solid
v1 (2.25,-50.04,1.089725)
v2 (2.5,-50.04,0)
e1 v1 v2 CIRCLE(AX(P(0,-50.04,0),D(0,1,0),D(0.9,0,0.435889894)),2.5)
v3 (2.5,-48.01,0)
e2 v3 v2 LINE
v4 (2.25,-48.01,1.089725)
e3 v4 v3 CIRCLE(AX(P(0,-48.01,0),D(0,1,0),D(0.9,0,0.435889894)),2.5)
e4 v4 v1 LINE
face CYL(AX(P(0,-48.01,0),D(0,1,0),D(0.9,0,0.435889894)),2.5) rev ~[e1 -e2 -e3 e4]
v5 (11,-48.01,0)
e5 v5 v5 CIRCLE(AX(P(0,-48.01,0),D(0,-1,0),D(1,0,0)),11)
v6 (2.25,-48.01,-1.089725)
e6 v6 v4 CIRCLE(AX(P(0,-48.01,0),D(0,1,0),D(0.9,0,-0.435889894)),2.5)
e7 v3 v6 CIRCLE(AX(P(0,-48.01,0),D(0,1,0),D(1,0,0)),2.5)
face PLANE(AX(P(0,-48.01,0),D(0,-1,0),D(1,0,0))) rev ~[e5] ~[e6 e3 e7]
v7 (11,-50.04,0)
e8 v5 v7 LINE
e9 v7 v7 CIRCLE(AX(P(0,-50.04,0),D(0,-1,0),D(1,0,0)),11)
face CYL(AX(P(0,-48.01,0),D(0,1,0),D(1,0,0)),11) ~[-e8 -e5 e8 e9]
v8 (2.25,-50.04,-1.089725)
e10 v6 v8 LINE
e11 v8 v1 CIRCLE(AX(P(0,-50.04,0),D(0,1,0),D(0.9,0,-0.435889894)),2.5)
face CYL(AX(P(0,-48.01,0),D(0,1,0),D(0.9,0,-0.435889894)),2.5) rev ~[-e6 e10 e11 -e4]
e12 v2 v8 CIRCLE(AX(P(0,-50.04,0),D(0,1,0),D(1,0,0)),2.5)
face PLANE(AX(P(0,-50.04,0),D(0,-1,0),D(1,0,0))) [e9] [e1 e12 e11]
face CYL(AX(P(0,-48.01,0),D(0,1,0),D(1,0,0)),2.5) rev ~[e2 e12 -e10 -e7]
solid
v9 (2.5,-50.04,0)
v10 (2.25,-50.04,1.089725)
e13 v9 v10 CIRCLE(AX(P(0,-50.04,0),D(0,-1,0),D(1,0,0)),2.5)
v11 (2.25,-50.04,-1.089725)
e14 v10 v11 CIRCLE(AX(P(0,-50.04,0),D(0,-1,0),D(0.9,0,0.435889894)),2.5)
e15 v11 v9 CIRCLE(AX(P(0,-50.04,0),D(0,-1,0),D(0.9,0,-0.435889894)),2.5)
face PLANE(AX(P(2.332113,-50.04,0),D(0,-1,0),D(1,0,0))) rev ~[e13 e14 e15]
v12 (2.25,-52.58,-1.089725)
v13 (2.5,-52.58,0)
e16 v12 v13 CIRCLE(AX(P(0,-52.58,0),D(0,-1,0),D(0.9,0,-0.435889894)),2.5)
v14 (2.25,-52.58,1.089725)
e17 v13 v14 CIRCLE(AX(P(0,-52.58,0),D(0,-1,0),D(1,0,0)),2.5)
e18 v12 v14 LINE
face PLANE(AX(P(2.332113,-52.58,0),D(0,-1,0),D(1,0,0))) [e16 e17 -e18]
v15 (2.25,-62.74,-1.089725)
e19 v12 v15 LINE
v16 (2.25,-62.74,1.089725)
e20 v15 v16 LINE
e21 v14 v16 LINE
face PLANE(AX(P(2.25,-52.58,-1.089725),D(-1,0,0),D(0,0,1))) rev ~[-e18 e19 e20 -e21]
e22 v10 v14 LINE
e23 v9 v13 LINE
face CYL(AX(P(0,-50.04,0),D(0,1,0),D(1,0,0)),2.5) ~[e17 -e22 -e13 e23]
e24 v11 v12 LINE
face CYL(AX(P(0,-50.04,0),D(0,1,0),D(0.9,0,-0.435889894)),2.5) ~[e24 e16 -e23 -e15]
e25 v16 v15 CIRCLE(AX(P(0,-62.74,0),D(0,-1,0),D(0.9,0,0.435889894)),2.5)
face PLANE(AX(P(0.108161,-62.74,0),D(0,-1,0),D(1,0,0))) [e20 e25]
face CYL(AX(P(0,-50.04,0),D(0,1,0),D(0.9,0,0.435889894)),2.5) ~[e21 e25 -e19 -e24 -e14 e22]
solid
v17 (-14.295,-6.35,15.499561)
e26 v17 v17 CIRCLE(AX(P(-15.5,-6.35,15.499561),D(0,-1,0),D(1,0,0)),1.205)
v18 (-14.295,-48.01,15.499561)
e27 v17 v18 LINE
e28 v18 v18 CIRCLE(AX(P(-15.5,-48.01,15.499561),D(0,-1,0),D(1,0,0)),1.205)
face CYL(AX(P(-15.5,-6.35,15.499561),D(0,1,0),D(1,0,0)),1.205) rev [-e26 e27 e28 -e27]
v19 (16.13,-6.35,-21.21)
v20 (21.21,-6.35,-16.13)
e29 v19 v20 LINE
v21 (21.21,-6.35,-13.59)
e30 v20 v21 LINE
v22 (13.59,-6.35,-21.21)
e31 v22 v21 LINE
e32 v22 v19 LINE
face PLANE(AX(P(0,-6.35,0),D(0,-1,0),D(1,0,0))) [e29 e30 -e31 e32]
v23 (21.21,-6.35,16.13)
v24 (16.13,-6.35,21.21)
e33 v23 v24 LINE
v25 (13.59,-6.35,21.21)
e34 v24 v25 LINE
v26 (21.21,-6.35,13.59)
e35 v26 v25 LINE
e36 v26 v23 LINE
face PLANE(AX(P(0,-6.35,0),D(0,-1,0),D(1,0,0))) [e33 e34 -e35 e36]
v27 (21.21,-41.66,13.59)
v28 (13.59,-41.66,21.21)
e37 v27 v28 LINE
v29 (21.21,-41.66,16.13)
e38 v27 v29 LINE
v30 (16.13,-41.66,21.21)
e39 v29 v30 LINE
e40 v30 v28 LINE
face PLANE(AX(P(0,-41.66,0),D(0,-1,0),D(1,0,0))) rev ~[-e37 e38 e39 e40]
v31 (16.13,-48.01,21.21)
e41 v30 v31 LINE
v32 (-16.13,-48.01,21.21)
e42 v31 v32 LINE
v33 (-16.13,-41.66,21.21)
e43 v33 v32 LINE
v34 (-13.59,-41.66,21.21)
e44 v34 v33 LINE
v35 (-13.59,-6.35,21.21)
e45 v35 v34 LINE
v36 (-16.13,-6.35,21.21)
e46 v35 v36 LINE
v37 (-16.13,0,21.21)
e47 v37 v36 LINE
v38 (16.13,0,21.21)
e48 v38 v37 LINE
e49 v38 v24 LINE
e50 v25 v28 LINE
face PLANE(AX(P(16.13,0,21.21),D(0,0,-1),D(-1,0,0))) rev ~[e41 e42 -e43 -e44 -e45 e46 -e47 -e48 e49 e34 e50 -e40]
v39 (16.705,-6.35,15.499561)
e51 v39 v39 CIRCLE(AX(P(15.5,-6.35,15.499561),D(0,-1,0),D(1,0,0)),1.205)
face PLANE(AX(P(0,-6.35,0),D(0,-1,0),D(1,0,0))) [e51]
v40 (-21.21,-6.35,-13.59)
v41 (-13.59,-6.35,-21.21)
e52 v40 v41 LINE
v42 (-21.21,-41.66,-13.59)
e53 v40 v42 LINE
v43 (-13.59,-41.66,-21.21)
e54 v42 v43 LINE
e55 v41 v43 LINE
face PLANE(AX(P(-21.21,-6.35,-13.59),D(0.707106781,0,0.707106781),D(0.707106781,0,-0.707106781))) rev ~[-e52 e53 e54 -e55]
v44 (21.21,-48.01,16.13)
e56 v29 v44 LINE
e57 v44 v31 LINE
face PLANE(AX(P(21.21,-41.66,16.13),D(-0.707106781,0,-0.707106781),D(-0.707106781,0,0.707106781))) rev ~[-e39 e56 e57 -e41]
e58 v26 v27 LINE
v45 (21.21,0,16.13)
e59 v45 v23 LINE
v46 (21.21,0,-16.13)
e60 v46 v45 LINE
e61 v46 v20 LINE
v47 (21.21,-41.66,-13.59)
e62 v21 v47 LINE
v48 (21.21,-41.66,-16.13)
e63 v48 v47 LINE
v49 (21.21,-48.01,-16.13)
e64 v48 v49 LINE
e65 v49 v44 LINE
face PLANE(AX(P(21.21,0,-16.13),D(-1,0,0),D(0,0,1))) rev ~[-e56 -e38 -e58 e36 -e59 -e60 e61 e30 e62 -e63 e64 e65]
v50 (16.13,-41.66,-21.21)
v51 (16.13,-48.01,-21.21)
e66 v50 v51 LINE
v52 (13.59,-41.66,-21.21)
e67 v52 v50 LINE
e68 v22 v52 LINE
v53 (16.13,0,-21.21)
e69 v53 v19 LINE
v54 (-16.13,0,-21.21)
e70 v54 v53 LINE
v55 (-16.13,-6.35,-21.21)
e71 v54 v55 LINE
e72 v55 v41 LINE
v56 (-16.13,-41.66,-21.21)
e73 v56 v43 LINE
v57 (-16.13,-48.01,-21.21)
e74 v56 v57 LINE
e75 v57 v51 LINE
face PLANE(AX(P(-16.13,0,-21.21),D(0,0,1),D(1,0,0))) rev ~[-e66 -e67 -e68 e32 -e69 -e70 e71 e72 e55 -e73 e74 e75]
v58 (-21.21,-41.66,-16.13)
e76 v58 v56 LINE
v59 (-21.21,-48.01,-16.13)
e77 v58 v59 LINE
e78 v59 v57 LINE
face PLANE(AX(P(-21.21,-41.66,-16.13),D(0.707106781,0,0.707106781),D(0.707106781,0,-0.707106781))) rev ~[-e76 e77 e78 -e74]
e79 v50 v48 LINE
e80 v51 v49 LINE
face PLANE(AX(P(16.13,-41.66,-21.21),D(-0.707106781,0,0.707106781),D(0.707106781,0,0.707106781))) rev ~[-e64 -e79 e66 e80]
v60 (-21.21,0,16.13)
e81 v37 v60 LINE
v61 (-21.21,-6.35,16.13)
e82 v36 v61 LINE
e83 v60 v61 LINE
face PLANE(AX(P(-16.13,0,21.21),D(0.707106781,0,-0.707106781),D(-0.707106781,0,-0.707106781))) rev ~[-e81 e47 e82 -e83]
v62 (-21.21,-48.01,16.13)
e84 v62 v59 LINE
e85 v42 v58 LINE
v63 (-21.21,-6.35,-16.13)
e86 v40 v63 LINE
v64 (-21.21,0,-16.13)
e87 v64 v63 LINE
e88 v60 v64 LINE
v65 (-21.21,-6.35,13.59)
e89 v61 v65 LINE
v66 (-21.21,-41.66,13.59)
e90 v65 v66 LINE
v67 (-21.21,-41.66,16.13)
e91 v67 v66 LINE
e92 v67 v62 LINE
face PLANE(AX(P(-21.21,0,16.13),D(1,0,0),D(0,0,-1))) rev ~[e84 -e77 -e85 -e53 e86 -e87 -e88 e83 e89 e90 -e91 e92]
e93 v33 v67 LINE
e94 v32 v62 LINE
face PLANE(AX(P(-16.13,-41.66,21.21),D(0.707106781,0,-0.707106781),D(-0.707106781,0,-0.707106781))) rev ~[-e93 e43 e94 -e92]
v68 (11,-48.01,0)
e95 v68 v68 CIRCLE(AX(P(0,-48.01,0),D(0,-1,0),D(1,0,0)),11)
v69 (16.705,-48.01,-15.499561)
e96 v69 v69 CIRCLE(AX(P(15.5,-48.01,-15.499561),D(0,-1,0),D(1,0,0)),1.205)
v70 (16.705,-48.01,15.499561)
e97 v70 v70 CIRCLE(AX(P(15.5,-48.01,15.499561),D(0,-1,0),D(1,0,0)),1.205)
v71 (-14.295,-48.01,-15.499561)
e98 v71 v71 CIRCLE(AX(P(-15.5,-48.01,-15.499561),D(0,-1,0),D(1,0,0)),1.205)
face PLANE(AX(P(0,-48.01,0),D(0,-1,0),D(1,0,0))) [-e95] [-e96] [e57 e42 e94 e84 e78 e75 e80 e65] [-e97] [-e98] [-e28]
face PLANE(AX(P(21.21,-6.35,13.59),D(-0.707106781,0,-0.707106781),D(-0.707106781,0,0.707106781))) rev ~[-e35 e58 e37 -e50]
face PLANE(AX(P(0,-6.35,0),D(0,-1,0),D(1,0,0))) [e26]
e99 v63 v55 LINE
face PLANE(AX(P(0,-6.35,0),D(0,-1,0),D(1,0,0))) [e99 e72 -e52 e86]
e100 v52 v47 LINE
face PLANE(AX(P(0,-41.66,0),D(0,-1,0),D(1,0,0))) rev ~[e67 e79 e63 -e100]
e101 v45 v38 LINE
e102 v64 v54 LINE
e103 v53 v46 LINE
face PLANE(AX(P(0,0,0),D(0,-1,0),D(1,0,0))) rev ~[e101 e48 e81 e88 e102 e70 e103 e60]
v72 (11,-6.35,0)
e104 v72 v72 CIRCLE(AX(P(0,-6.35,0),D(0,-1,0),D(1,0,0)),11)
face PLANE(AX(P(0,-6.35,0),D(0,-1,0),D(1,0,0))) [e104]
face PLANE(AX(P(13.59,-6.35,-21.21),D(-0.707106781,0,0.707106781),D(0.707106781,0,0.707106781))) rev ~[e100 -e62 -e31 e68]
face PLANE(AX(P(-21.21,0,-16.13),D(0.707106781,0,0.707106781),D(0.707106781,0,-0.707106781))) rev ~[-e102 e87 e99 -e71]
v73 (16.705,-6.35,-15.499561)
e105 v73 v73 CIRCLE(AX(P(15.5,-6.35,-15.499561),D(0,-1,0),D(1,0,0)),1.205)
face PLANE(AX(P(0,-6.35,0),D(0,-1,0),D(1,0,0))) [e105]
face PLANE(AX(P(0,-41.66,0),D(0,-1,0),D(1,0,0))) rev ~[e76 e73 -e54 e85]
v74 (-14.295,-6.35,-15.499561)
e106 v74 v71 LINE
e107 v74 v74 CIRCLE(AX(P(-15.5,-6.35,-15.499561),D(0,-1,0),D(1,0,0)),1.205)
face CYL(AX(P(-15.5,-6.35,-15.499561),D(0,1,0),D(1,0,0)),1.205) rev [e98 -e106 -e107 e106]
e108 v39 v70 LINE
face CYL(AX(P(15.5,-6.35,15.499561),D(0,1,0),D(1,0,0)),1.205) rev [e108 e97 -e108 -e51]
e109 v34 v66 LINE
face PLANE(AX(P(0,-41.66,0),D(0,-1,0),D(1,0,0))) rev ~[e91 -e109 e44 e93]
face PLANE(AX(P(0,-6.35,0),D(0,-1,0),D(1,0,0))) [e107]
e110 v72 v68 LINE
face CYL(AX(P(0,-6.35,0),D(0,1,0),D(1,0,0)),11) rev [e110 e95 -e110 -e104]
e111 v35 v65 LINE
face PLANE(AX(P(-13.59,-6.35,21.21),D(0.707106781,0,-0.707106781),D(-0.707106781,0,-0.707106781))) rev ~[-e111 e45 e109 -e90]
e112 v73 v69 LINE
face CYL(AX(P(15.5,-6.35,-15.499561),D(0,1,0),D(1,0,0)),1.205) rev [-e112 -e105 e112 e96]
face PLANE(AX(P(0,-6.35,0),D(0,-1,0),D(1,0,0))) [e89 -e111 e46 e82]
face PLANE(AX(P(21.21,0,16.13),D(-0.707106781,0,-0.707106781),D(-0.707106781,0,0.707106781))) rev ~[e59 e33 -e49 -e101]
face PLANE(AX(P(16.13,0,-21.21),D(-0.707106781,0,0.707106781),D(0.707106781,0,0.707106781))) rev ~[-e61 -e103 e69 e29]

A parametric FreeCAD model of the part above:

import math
import FreeCAD as App
import Part
import Sketcher
Q = App.Units.Quantity

doc = App.newDocument("Part")
body = doc.addObject("PartDesign::Body", "Body")

sketch1 = body.newObject("Sketcher::SketchObject", "Sketch")
sketch1.AttachmentSupport = (doc.getObject("XZ_Plane"), [""])
sketch1.MapMode = "FlatFace"
sketch1.AttachmentOffset = App.Placement(App.Vector(0, 0, 52.58), App.Rotation())
sketch1.addGeometry([
    Part.LineSegment(App.Vector(2.25, -1.089725, 0), App.Vector(2.25, 1.089725, 0)),
    Part.ArcOfCircle(Part.Circle(App.Vector(0, 0, 0), App.Vector(0, 0, 1), 2.5), math.radians(25.841933), math.radians(334.158067)),
], False)
sketch1.addConstraint([
    Sketcher.Constraint("Coincident", 0, 1, 1, 2),
    Sketcher.Constraint("Coincident", 1, 1, 0, 2),
    Sketcher.Constraint("Vertical", 0),
    Sketcher.Constraint("Coincident", 1, 3, -1, 1),
    Sketcher.Constraint("Radius", 1, 2.5),
    Sketcher.Constraint("DistanceY", 0, 1, 0, 2, 2.179449),
])
pad1 = body.newObject("PartDesign::Pad", "Pad")
pad1.Profile = sketch1
pad1.Length = Q("0.4 in")

sketch2 = body.newObject("Sketcher::SketchObject", "Sketch001")
sketch2.AttachmentSupport = (doc.getObject("XZ_Plane"), [""])
sketch2.MapMode = "FlatFace"
sketch2.AttachmentOffset = App.Placement(App.Vector(0, 0, 50.04), App.Rotation())
sketch2.addGeometry([
    Part.ArcOfCircle(Part.Circle(App.Vector(0, 0, 0), App.Vector(0, 0, 1), 2.5), math.radians(-25.841933), math.radians(0)),
    Part.ArcOfCircle(Part.Circle(App.Vector(0, 0, 0), App.Vector(0, 0, 1), 2.5), math.radians(0), math.radians(25.841933)),
    Part.ArcOfCircle(Part.Circle(App.Vector(0, 0, 0), App.Vector(0, 0, 1), 2.5), math.radians(25.841933), math.radians(334.158067)),
], False)
sketch2.addConstraint([
    Sketcher.Constraint("Tangent", 0, 2, 1, 1),
    Sketcher.Constraint("Tangent", 1, 2, 2, 1),
    Sketcher.Constraint("Tangent", 2, 2, 0, 1),
    Sketcher.Constraint("Coincident", 0, 3, -1, 1),
    Sketcher.Constraint("PointOnObject", 0, 2, -1),
    Sketcher.Constraint("Vertical", 1, 2, 2, 2),
    Sketcher.Constraint("Radius", 0, 2.5),
    Sketcher.Constraint("DistanceX", -1, 1, 1, 2, 2.25),
])
pad2 = body.newObject("PartDesign::Pad", "Pad001")
pad2.Profile = sketch2
pad2.Length = Q("0.1 in")
body2 = doc.addObject("PartDesign::Body", "Body001")

sketch3 = body2.newObject("Sketcher::SketchObject", "Sketch002")
sketch3.AttachmentSupport = (doc.getObject("XZ_Plane001"), [""])
sketch3.MapMode = "FlatFace"
sketch3.AttachmentOffset = App.Placement(App.Vector(0, 0, 48.01), App.Rotation())
sketch3.addGeometry([
    Part.Circle(App.Vector(0, 0, 0), App.Vector(0, 0, 1), 11),
    Part.ArcOfCircle(Part.Circle(App.Vector(0, 0, 0), App.Vector(0, 0, 1), 2.5), math.radians(25.841933), math.radians(334.158067)),
    Part.ArcOfCircle(Part.Circle(App.Vector(0, 0, 0), App.Vector(0, 0, 1), 2.5), math.radians(0), math.radians(25.841933)),
    Part.ArcOfCircle(Part.Circle(App.Vector(0, 0, 0), App.Vector(0, 0, 1), 2.5), math.radians(-25.841933), math.radians(0)),
], False)
sketch3.addConstraint([
    Sketcher.Constraint("Tangent", 1, 1, 2, 2),
    Sketcher.Constraint("Tangent", 2, 1, 3, 2),
    Sketcher.Constraint("Tangent", 3, 1, 1, 2),
    Sketcher.Constraint("Coincident", 0, 3, -1, 1),
    Sketcher.Constraint("Coincident", 1, 3, -1, 1),
    Sketcher.Constraint("PointOnObject", 2, 1, -1),
    Sketcher.Constraint("Vertical", 1, 1, 3, 1),
    Sketcher.Constraint("Diameter", 0, 22.0),
    Sketcher.Constraint("Radius", 1, 2.5),
    Sketcher.Constraint("DistanceX", -1, 1, 1, 1, 2.25),
])
pad3 = body2.newObject("PartDesign::Pad", "Pad002")
pad3.Profile = sketch3
pad3.Length = 2.03
body3 = doc.addObject("PartDesign::Body", "Body002")

sketch4 = body3.newObject("Sketcher::SketchObject", "Sketch003")
sketch4.AttachmentSupport = (doc.getObject("XZ_Plane002"), [""])
sketch4.MapMode = "FlatFace"
sketch4.AttachmentOffset = App.Placement(App.Vector(0, 0, 41.66), App.Rotation())
sketch4.addGeometry([
    Part.LineSegment(App.Vector(16.13, -21.21, 0), App.Vector(21.21, -16.13, 0)),
    Part.LineSegment(App.Vector(21.21, -16.13, 0), App.Vector(21.21, 16.13, 0)),
    Part.LineSegment(App.Vector(21.21, 16.13, 0), App.Vector(16.13, 21.21, 0)),
    Part.LineSegment(App.Vector(16.13, 21.21, 0), App.Vector(-16.13, 21.21, 0)),
    Part.LineSegment(App.Vector(-16.13, 21.21, 0), App.Vector(-21.21, 16.13, 0)),
    Part.LineSegment(App.Vector(-21.21, 16.13, 0), App.Vector(-21.21, -16.13, 0)),
    Part.LineSegment(App.Vector(-21.21, -16.13, 0), App.Vector(-16.13, -21.21, 0)),
    Part.LineSegment(App.Vector(-16.13, -21.21, 0), App.Vector(16.13, -21.21, 0)),
    Part.Circle(App.Vector(-15.5, -15.499561, 0), App.Vector(0, 0, 1), 1.205),
    Part.Circle(App.Vector(15.5, -15.499561, 0), App.Vector(0, 0, 1), 1.205),
    Part.Circle(App.Vector(-15.5, 15.499561, 0), App.Vector(0, 0, 1), 1.205),
    Part.Circle(App.Vector(0, 0, 0), App.Vector(0, 0, 1), 11),
    Part.Circle(App.Vector(15.5, 15.499561, 0), App.Vector(0, 0, 1), 1.205),
], False)
sketch4.addConstraint([
    Sketcher.Constraint("Coincident", 0, 2, 1, 1),
    Sketcher.Constraint("Coincident", 1, 2, 2, 1),
    Sketcher.Constraint("Coincident", 2, 2, 3, 1),
    Sketcher.Constraint("Coincident", 3, 2, 4, 1),
    Sketcher.Constraint("Coincident", 4, 2, 5, 1),
    Sketcher.Constraint("Coincident", 5, 2, 6, 1),
    Sketcher.Constraint("Coincident", 6, 2, 7, 1),
    Sketcher.Constraint("Coincident", 7, 2, 0, 1),
    Sketcher.Constraint("Vertical", 1),
    Sketcher.Constraint("Horizontal", 3),
    Sketcher.Constraint("Vertical", 5),
    Sketcher.Constraint("Horizontal", 7),
    Sketcher.Constraint("Coincident", 11, 3, -1, 1),
    Sketcher.Constraint("Equal", 8, 9),
    Sketcher.Constraint("Equal", 9, 10),
    Sketcher.Constraint("Equal", 10, 12),
    Sketcher.Constraint("Symmetric", 9, 3, 10, 3, -1, 1),
    Sketcher.Constraint("Symmetric", 8, 3, 12, 3, -1, 1),
    Sketcher.Constraint("Symmetric", 0, 2, 4, 2, -1, 1),
    Sketcher.Constraint("Symmetric", 2, 2, 6, 2, -1, 1),
    Sketcher.Constraint("Symmetric", 8, 3, 9, 3, -2),
    Sketcher.Constraint("Perpendicular", 0, 2),
    Sketcher.Constraint("Perpendicular", 2, 4),
    Sketcher.Constraint("Perpendicular", 4, 6),
    Sketcher.Constraint("Horizontal", 1, 2, 4, 2),
    Sketcher.Constraint("Vertical", 3, 2, 6, 2),
    Sketcher.Constraint("Equal", 7, 1),
    Sketcher.Constraint("DistanceX", 2, 2, 1, 2, Q("0.2 in")),
    Sketcher.Constraint("Diameter", 8, 2.41),
    Sketcher.Constraint("Diameter", 11, 22.0),
    Sketcher.Constraint("DistanceX", 3, 2, 3, 1, 32.26),
    Sketcher.Constraint("DistanceX", 8, 3, -1, 1, 15.5),
    Sketcher.Constraint("DistanceY", 8, 3, -1, 1, 15.499561),
])
pad4 = body3.newObject("PartDesign::Pad", "Pad003")
pad4.Profile = sketch4
pad4.Length = Q("0.25 in")

sketch5 = body3.newObject("Sketcher::SketchObject", "Sketch004")
sketch5.AttachmentSupport = (doc.getObject("XZ_Plane002"), [""])
sketch5.MapMode = "FlatFace"
sketch5.AttachmentOffset = App.Placement(App.Vector(0, 0, 0.25 * 25.4), App.Rotation())
sketch5.addGeometry([
    Part.LineSegment(App.Vector(-21.21, -13.59, 0), App.Vector(-13.59, -21.21, 0)),
    Part.LineSegment(App.Vector(-13.59, -21.21, 0), App.Vector(13.59, -21.21, 0)),
    Part.LineSegment(App.Vector(13.59, -21.21, 0), App.Vector(21.21, -13.59, 0)),
    Part.LineSegment(App.Vector(21.21, -13.59, 0), App.Vector(21.21, 13.59, 0)),
    Part.LineSegment(App.Vector(21.21, 13.59, 0), App.Vector(13.59, 21.21, 0)),
    Part.LineSegment(App.Vector(13.59, 21.21, 0), App.Vector(-13.59, 21.21, 0)),
    Part.LineSegment(App.Vector(-13.59, 21.21, 0), App.Vector(-21.21, 13.59, 0)),
    Part.LineSegment(App.Vector(-21.21, 13.59, 0), App.Vector(-21.21, -13.59, 0)),
    Part.Circle(App.Vector(-15.5, -15.499561, 0), App.Vector(0, 0, 1), 1.205),
    Part.Circle(App.Vector(15.5, -15.499561, 0), App.Vector(0, 0, 1), 1.205),
    Part.Circle(App.Vector(-15.5, 15.499561, 0), App.Vector(0, 0, 1), 1.205),
    Part.Circle(App.Vector(0, 0, 0), App.Vector(0, 0, 1), 11),
    Part.Circle(App.Vector(15.5, 15.499561, 0), App.Vector(0, 0, 1), 1.205),
], False)
sketch5.addConstraint([
    Sketcher.Constraint("Coincident", 0, 2, 1, 1),
    Sketcher.Constraint("Coincident", 1, 2, 2, 1),
    Sketcher.Constraint("Coincident", 2, 2, 3, 1),
    Sketcher.Constraint("Coincident", 3, 2, 4, 1),
    Sketcher.Constraint("Coincident", 4, 2, 5, 1),
    Sketcher.Constraint("Coincident", 5, 2, 6, 1),
    Sketcher.Constraint("Coincident", 6, 2, 7, 1),
    Sketcher.Constraint("Coincident", 7, 2, 0, 1),
    Sketcher.Constraint("Horizontal", 1),
    Sketcher.Constraint("Vertical", 3),
    Sketcher.Constraint("Horizontal", 5),
    Sketcher.Constraint("Vertical", 7),
    Sketcher.Constraint("Coincident", 11, 3, -1, 1),
    Sketcher.Constraint("Equal", 8, 9),
    Sketcher.Constraint("Equal", 9, 10),
    Sketcher.Constraint("Equal", 10, 12),
    Sketcher.Constraint("Symmetric", 9, 3, 10, 3, -1, 1),
    Sketcher.Constraint("Symmetric", 8, 3, 12, 3, -1, 1),
    Sketcher.Constraint("Symmetric", 0, 2, 4, 2, -1, 1),
    Sketcher.Constraint("Symmetric", 2, 2, 6, 2, -1, 1),
    Sketcher.Constraint("Symmetric", 8, 3, 9, 3, -2),
    Sketcher.Constraint("Perpendicular", 0, 2),
    Sketcher.Constraint("Perpendicular", 2, 4),
    Sketcher.Constraint("Perpendicular", 4, 6),
    Sketcher.Constraint("Horizontal", 3, 2, 6, 2),
    Sketcher.Constraint("Vertical", 1, 2, 4, 2),
    Sketcher.Constraint("Equal", 5, 3),
    Sketcher.Constraint("DistanceX", 1, 2, 2, 2, Q("0.3 in")),
    Sketcher.Constraint("Diameter", 8, 2.41),
    Sketcher.Constraint("Diameter", 11, 22.0),
    Sketcher.Constraint("DistanceX", 1, 1, 1, 2, 27.18),
    Sketcher.Constraint("DistanceX", 8, 3, -1, 1, 15.5),
    Sketcher.Constraint("DistanceY", 8, 3, -1, 1, 15.499561),
])
pad5 = body3.newObject("PartDesign::Pad", "Pad004")
pad5.Profile = sketch5
pad5.Length = 35.31

sketch6 = body3.newObject("Sketcher::SketchObject", "Sketch005")
sketch6.AttachmentSupport = (doc.getObject("XZ_Plane002"), [""])
sketch6.MapMode = "FlatFace"
sketch6.addGeometry([
    Part.LineSegment(App.Vector(21.21, 16.13, 0), App.Vector(16.13, 21.21, 0)),
    Part.LineSegment(App.Vector(16.13, 21.21, 0), App.Vector(-16.13, 21.21, 0)),
    Part.LineSegment(App.Vector(-16.13, 21.21, 0), App.Vector(-21.21, 16.13, 0)),
    Part.LineSegment(App.Vector(-21.21, 16.13, 0), App.Vector(-21.21, -16.13, 0)),
    Part.LineSegment(App.Vector(-21.21, -16.13, 0), App.Vector(-16.13, -21.21, 0)),
    Part.LineSegment(App.Vector(-16.13, -21.21, 0), App.Vector(16.13, -21.21, 0)),
    Part.LineSegment(App.Vector(16.13, -21.21, 0), App.Vector(21.21, -16.13, 0)),
    Part.LineSegment(App.Vector(21.21, -16.13, 0), App.Vector(21.21, 16.13, 0)),
], False)
sketch6.addConstraint([
    Sketcher.Constraint("Coincident", 0, 2, 1, 1),
    Sketcher.Constraint("Coincident", 1, 2, 2, 1),
    Sketcher.Constraint("Coincident", 2, 2, 3, 1),
    Sketcher.Constraint("Coincident", 3, 2, 4, 1),
    Sketcher.Constraint("Coincident", 4, 2, 5, 1),
    Sketcher.Constraint("Coincident", 5, 2, 6, 1),
    Sketcher.Constraint("Coincident", 6, 2, 7, 1),
    Sketcher.Constraint("Coincident", 7, 2, 0, 1),
    Sketcher.Constraint("Horizontal", 1),
    Sketcher.Constraint("Vertical", 3),
    Sketcher.Constraint("Horizontal", 5),
    Sketcher.Constraint("Vertical", 7),
    Sketcher.Constraint("Symmetric", 0, 2, 4, 2, -1, 1),
    Sketcher.Constraint("Symmetric", 2, 2, 6, 2, -1, 1),
    Sketcher.Constraint("Perpendicular", 0, 2),
    Sketcher.Constraint("Perpendicular", 2, 4),
    Sketcher.Constraint("Perpendicular", 4, 6),
    Sketcher.Constraint("Horizontal", 3, 2, 6, 2),
    Sketcher.Constraint("Vertical", 1, 2, 4, 2),
    Sketcher.Constraint("Equal", 5, 3),
    Sketcher.Constraint("DistanceX", 2, 2, 1, 2, Q("0.2 in")),
    Sketcher.Constraint("DistanceX", 1, 2, 1, 1, 32.26),
])
pad6 = body3.newObject("PartDesign::Pad", "Pad005")
pad6.Profile = sketch6
pad6.Length = Q("0.25 in")

doc.recompute()
